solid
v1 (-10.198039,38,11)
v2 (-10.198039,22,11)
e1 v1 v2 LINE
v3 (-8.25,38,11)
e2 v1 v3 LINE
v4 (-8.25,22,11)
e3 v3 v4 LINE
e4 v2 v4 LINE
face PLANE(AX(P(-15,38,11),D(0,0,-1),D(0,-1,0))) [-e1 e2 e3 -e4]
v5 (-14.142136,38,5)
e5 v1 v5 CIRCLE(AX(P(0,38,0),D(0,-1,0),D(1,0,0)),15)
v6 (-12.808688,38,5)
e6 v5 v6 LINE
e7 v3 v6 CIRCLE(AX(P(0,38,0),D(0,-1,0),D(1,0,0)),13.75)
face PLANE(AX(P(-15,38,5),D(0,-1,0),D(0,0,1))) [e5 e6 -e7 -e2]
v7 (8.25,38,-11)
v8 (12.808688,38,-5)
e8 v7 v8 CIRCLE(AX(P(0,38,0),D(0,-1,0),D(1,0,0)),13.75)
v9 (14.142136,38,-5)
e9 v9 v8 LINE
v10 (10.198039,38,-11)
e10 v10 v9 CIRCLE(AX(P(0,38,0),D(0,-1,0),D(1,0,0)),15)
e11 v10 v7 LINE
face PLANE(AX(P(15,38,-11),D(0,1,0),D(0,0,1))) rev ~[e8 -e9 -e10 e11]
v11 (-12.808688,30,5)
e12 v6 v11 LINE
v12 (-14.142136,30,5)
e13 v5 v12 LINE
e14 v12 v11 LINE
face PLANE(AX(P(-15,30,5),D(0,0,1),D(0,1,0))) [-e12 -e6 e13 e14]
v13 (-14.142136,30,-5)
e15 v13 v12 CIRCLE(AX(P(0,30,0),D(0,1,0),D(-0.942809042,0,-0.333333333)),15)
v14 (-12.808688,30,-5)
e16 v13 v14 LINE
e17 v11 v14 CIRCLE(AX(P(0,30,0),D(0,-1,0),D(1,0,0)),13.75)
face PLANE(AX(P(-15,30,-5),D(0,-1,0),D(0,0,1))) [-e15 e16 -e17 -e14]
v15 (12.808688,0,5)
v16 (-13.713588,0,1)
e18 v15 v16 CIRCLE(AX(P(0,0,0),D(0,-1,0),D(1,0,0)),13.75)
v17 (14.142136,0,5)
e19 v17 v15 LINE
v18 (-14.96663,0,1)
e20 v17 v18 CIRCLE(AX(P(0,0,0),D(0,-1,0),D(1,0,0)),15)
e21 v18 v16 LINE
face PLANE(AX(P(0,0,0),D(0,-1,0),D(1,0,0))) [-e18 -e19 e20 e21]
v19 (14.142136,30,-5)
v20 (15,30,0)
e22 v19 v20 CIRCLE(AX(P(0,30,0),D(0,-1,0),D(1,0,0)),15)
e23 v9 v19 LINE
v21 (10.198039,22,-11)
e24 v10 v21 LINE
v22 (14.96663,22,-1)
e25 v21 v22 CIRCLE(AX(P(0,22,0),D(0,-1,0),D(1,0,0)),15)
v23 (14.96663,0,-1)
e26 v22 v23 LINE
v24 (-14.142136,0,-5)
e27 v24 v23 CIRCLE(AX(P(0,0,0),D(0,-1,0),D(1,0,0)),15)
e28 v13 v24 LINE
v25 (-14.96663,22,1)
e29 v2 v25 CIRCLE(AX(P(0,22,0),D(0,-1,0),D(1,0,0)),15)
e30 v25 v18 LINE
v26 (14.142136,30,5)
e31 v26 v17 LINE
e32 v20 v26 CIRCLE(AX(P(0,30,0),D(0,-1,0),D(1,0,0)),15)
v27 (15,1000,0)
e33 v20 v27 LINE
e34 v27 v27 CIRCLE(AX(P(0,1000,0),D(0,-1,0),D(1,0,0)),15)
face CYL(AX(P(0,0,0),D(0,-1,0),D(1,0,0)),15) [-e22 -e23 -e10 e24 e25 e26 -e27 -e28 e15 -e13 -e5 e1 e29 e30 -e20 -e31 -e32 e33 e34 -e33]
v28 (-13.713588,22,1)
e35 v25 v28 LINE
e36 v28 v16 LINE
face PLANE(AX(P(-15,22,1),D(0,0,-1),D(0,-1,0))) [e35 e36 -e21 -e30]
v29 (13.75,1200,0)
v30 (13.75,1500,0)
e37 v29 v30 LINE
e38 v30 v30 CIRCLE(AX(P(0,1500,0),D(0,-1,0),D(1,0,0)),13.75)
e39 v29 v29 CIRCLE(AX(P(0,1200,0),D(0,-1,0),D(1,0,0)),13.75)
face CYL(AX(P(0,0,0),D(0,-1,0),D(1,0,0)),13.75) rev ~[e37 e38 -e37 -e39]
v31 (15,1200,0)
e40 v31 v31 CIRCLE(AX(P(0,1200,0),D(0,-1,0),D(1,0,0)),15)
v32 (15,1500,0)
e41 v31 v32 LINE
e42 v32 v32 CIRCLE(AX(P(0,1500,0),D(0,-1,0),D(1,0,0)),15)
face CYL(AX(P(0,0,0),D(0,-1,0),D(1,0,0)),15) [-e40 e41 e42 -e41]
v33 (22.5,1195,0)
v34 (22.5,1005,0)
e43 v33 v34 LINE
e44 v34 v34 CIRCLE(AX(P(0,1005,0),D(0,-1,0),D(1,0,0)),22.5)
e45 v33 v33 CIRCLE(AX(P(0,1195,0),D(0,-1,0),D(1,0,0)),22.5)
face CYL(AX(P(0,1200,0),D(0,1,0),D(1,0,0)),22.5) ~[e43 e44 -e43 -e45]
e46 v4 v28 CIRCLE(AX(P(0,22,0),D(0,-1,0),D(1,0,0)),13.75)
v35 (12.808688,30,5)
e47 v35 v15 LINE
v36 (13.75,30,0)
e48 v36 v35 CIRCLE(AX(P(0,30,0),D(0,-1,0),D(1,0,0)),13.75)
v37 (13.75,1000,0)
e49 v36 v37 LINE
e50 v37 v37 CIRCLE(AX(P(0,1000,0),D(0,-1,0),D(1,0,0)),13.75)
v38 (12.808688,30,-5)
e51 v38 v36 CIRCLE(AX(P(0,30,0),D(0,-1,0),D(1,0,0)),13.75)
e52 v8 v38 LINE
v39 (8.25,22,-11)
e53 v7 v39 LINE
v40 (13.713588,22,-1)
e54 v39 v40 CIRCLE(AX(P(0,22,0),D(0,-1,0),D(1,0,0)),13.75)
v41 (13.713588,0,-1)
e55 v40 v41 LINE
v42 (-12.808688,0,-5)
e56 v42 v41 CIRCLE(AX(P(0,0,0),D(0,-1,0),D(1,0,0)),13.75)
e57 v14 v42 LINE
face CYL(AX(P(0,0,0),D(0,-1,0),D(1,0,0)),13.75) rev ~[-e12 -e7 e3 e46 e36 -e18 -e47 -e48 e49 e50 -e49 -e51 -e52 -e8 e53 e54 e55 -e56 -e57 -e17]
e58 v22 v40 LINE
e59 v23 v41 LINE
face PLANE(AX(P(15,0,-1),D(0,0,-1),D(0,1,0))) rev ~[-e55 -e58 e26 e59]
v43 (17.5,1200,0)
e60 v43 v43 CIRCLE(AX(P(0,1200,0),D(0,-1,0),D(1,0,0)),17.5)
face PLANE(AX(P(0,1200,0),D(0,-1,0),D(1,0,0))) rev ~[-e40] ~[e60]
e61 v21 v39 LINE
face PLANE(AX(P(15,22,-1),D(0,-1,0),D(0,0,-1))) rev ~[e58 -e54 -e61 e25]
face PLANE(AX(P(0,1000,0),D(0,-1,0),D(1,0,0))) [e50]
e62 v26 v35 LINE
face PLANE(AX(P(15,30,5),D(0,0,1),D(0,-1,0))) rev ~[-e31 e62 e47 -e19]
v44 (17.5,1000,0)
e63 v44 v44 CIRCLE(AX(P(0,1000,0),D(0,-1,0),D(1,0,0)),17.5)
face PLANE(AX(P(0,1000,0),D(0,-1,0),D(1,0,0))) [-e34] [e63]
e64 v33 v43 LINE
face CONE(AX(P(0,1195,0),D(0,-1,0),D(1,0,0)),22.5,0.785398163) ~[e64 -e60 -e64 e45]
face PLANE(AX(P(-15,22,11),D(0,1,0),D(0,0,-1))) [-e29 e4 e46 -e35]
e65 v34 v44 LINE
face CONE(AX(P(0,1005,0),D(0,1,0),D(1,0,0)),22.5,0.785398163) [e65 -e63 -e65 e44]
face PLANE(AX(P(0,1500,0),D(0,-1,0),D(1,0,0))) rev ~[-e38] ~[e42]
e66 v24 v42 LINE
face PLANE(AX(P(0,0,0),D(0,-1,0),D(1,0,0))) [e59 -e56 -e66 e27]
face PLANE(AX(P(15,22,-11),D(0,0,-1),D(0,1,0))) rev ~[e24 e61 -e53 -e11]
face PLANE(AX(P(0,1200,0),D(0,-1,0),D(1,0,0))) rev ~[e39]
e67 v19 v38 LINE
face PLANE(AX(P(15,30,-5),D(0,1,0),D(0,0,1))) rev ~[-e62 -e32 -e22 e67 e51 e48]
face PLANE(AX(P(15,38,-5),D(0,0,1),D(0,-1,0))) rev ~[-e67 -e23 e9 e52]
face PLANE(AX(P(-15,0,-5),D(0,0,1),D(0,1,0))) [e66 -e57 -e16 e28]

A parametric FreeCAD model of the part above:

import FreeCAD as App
import Part
import Sketcher

V = App.Vector
Q = App.Units.Quantity


def edges_at(feature, points):
    """Names of the edges that pass closest to the given points."""
    edges = feature.Shape.Edges
    near = lambda p: min(range(len(edges)), key=lambda i: edges[i].distToShape(Part.Vertex(*p))[0])
    return sorted({f"Edge{near(p) + 1}" for p in points})

doc = App.newDocument("Part")
body = doc.addObject("PartDesign::Body", "Body")

# Sketch on XZ plane
sketch1 = body.newObject("Sketcher::SketchObject", "Sketch")
sketch1.AttachmentSupport = (doc.getObject("XZ_Plane"), [""])
sketch1.MapMode = "FlatFace"
sketch1.addGeometry(Part.Circle(V(0, 0, 0), V(0, 0, 1), 15), False)
sketch1.addConstraint(Sketcher.Constraint("Coincident", 0, 3, -1, 1))
sketch1.addConstraint(Sketcher.Constraint("Diameter", 0, Q("30 mm")))
pad1 = body.newObject("PartDesign::Pad", "Pad")
pad1.Profile = sketch1
pad1.Length = 1500
pad1.Reversed = True

# Sketch on XZ plane
sketch2 = body.newObject("Sketcher::SketchObject", "Sketch001")
sketch2.AttachmentSupport = (doc.getObject("XZ_Plane"), [""])
sketch2.MapMode = "FlatFace"
sketch2.addGeometry(Part.Circle(V(0, 0, 0), V(0, 0, 1), 14), False)
sketch2.addConstraint(Sketcher.Constraint("Coincident", 0, 3, -1, 1))
sketch2.addConstraint(Sketcher.Constraint("Diameter", 0, Q("27.5 mm")))
pocket1 = body.newObject("PartDesign::Pocket", "Pocket")
pocket1.Profile = sketch2
pocket1.Length = 3000

# Sketch on YZ plane
sketch3 = body.newObject("Sketcher::SketchObject", "Sketch002")
sketch3.AttachmentSupport = (doc.getObject("YZ_Plane"), [""])
sketch3.MapMode = "FlatFace"
sketch3.AttachmentOffset = App.Placement(V(0, 0, 15), App.Rotation())
sketch3.addGeometry(Part.LineSegment(V(30, 5, 0), V(0, 5, 0)), False)
sketch3.addGeometry(Part.LineSegment(V(0, 5, 0), V(0, -1, 0)), False)
sketch3.addGeometry(Part.LineSegment(V(0, -1, 0), V(22, -1, 0)), False)
sketch3.addGeometry(Part.LineSegment(V(22, -1, 0), V(22, -11, 0)), False)
sketch3.addGeometry(Part.LineSegment(V(22, -11, 0), V(38, -11, 0)), False)
sketch3.addGeometry(Part.LineSegment(V(38, -11, 0), V(38, -5, 0)), False)
sketch3.addGeometry(Part.LineSegment(V(38, -5, 0), V(30, -5, 0)), False)
sketch3.addGeometry(Part.LineSegment(V(30, -5, 0), V(30, 5, 0)), False)
sketch3.addConstraint(Sketcher.Constraint("Coincident", 0, 2, 1, 1))
sketch3.addConstraint(Sketcher.Constraint("Coincident", 1, 2, 2, 1))
sketch3.addConstraint(Sketcher.Constraint("Coincident", 2, 2, 3, 1))
sketch3.addConstraint(Sketcher.Constraint("Coincident", 3, 2, 4, 1))
sketch3.addConstraint(Sketcher.Constraint("Coincident", 4, 2, 5, 1))
sketch3.addConstraint(Sketcher.Constraint("Coincident", 5, 2, 6, 1))
sketch3.addConstraint(Sketcher.Constraint("Coincident", 6, 2, 7, 1))
sketch3.addConstraint(Sketcher.Constraint("Coincident", 7, 2, 0, 1))
sketch3.addConstraint(Sketcher.Constraint("Horizontal", 0))
sketch3.addConstraint(Sketcher.Constraint("Vertical", 1))
sketch3.addConstraint(Sketcher.Constraint("Horizontal", 2))
sketch3.addConstraint(Sketcher.Constraint("Vertical", 3))
sketch3.addConstraint(Sketcher.Constraint("Horizontal", 4))
sketch3.addConstraint(Sketcher.Constraint("Vertical", 5))
sketch3.addConstraint(Sketcher.Constraint("Horizontal", 6))
sketch3.addConstraint(Sketcher.Constraint("Vertical", 7))
sketch3.addConstraint(Sketcher.Constraint("PointOnObject", 0, 2, -2))
sketch3.addConstraint(Sketcher.Constraint("Equal", 1, 5))
sketch3.addConstraint(Sketcher.Constraint("DistanceX", 0, 2, 0, 1, Q("30 mm")))
sketch3.addConstraint(Sketcher.Constraint("DistanceX", 2, 1, 2, 2, Q("22 mm")))
sketch3.addConstraint(Sketcher.Constraint("DistanceX", 4, 1, 4, 2, Q("16 mm")))
sketch3.addConstraint(Sketcher.Constraint("DistanceY", 1, 2, 1, 1, Q("6 mm")))
sketch3.addConstraint(Sketcher.Constraint("DistanceY", 3, 2, 3, 1, Q("10 mm")))
sketch3.addConstraint(Sketcher.Constraint("DistanceY", -1, 1, 0, 2, Q("5 mm")))
pocket2 = body.newObject("PartDesign::Pocket", "Pocket001")
pocket2.Profile = sketch3
pocket2.Length = 10

# Sketch on YZ plane
sketch4 = body.newObject("Sketcher::SketchObject", "Sketch003")
sketch4.AttachmentSupport = (doc.getObject("YZ_Plane"), [""])
sketch4.MapMode = "FlatFace"
sketch4.AttachmentOffset = App.Placement(V(0, 0, -15), App.Rotation())
sketch4.addGeometry(Part.LineSegment(V(22, 1, 0), V(0, 1, 0)), False)
sketch4.addGeometry(Part.LineSegment(V(0, 1, 0), V(0, -5, 0)), False)
sketch4.addGeometry(Part.LineSegment(V(0, -5, 0), V(30, -5, 0)), False)
sketch4.addGeometry(Part.LineSegment(V(30, -5, 0), V(30, 5, 0)), False)
sketch4.addGeometry(Part.LineSegment(V(30, 5, 0), V(38, 5, 0)), False)
sketch4.addGeometry(Part.LineSegment(V(38, 5, 0), V(38, 11, 0)), False)
sketch4.addGeometry(Part.LineSegment(V(38, 11, 0), V(22, 11, 0)), False)
sketch4.addGeometry(Part.LineSegment(V(22, 11, 0), V(22, 1, 0)), False)
sketch4.addConstraint(Sketcher.Constraint("Coincident", 0, 2, 1, 1))
sketch4.addConstraint(Sketcher.Constraint("Coincident", 1, 2, 2, 1))
sketch4.addConstraint(Sketcher.Constraint("Coincident", 2, 2, 3, 1))
sketch4.addConstraint(Sketcher.Constraint("Coincident", 3, 2, 4, 1))
sketch4.addConstraint(Sketcher.Constraint("Coincident", 4, 2, 5, 1))
sketch4.addConstraint(Sketcher.Constraint("Coincident", 5, 2, 6, 1))
sketch4.addConstraint(Sketcher.Constraint("Coincident", 6, 2, 7, 1))
sketch4.addConstraint(Sketcher.Constraint("Coincident", 7, 2, 0, 1))
sketch4.addConstraint(Sketcher.Constraint("Horizontal", 0))
sketch4.addConstraint(Sketcher.Constraint("Vertical", 1))
sketch4.addConstraint(Sketcher.Constraint("Horizontal", 2))
sketch4.addConstraint(Sketcher.Constraint("Vertical", 3))
sketch4.addConstraint(Sketcher.Constraint("Horizontal", 4))
sketch4.addConstraint(Sketcher.Constraint("Vertical", 5))
sketch4.addConstraint(Sketcher.Constraint("Horizontal", 6))
sketch4.addConstraint(Sketcher.Constraint("Vertical", 7))
sketch4.addConstraint(Sketcher.Constraint("PointOnObject", 0, 2, -2))
sketch4.addConstraint(Sketcher.Constraint("Equal", 1, 5))
sketch4.addConstraint(Sketcher.Constraint("DistanceX", 0, 2, 0, 1, Q("22 mm")))
sketch4.addConstraint(Sketcher.Constraint("DistanceX", 2, 1, 2, 2, Q("30 mm")))
sketch4.addConstraint(Sketcher.Constraint("DistanceX", 4, 1, 4, 2, Q("8 mm")))
sketch4.addConstraint(Sketcher.Constraint("DistanceY", 1, 2, 1, 1, Q("6 mm")))
sketch4.addConstraint(Sketcher.Constraint("DistanceY", 3, 1, 3, 2, Q("10 mm")))
sketch4.addConstraint(Sketcher.Constraint("DistanceY", -1, 1, 0, 2, Q("1 mm")))
pocket3 = body.newObject("PartDesign::Pocket", "Pocket002")
pocket3.Profile = sketch4
pocket3.Length = 10
pocket3.Reversed = True

# Sketch on XZ plane
sketch5 = body.newObject("Sketcher::SketchObject", "Sketch004")
sketch5.AttachmentSupport = (doc.getObject("XZ_Plane"), [""])
sketch5.MapMode = "FlatFace"
sketch5.AttachmentOffset = App.Placement(V(0, 0, -1200), App.Rotation())
sketch5.addGeometry(Part.Circle(V(0, 0, 0), V(0, 0, 1), 22), False)
sketch5.addConstraint(Sketcher.Constraint("Coincident", 0, 3, -1, 1))
sketch5.addConstraint(Sketcher.Constraint("Diameter", 0, Q("45 mm")))
pad2 = body.newObject("PartDesign::Pad", "Pad001")
pad2.Profile = sketch5
pad2.Length = 200
doc.recompute()

chamfer = body.newObject("PartDesign::Chamfer", "Chamfer")
chamfer.Base = (pad2, edges_at(pad2, [(22.5, 1100, 0), (-22.5, 1200, 0), (-22.5, 1000, 0)]))
chamfer.Size = 5

doc.recompute()
